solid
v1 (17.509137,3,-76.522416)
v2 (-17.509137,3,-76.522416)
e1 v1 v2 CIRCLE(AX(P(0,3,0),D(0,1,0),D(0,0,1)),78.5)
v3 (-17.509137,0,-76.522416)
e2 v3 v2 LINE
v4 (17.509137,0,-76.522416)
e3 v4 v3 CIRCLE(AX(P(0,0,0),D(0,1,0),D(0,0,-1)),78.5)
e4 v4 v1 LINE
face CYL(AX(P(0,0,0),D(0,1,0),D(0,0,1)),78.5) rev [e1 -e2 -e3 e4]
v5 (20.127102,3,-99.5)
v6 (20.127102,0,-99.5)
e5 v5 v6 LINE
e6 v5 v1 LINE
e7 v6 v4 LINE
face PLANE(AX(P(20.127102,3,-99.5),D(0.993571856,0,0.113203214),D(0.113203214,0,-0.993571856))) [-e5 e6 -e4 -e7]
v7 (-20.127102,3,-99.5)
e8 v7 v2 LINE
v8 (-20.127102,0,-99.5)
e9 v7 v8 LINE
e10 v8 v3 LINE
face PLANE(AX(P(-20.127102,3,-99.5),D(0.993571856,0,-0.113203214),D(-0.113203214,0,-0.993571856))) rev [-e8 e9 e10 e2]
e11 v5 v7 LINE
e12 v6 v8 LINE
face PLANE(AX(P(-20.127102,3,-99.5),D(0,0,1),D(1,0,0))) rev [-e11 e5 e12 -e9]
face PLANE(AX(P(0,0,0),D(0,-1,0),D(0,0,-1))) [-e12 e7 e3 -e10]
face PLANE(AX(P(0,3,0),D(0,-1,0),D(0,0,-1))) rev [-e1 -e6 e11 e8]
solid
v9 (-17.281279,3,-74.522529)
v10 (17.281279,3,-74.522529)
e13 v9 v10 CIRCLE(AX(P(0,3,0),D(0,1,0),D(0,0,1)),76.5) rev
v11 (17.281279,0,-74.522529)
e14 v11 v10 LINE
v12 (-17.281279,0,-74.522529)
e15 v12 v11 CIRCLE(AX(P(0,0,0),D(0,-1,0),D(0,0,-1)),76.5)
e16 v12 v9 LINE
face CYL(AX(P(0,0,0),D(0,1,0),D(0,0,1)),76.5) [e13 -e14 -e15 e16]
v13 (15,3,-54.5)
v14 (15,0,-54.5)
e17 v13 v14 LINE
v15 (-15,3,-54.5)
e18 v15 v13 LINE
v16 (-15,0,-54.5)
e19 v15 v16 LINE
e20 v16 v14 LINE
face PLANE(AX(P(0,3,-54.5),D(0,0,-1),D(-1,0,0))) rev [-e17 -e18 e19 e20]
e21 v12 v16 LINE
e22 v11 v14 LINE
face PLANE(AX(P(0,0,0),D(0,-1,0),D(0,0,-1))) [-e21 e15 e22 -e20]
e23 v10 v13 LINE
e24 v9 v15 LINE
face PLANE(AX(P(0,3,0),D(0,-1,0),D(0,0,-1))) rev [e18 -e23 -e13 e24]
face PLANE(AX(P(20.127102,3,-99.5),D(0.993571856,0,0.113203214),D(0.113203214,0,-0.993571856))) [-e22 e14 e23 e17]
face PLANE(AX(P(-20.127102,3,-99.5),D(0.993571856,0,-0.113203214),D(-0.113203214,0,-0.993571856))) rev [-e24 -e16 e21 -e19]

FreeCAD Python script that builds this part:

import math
import FreeCAD as App
import Part
import Sketcher

V = App.Vector
Q = App.Units.Quantity

doc = App.newDocument("Part")
body = doc.addObject("PartDesign::Body", "Body")
body.AllowCompound = True

sketch1 = body.newObject("Sketcher::SketchObject", "Sketch")
sketch1.AttachmentSupport = (doc.getObject("XZ_Plane"), [""])
sketch1.MapMode = "FlatFace"
sketch1.addGeometry([
    Part.LineSegment(V(-20, -100, 0), V(-15, -54, 0)),
    Part.LineSegment(V(-15, -54, 0), V(0, -54, 0)),
    Part.LineSegment(V(0, -54, 0), V(0, -100, 0)),
    Part.LineSegment(V(0, -100, 0), V(-20, -100, 0)),
], False)
sketch1.addConstraint([
    Sketcher.Constraint("Coincident", 0, 2, 1, 1),
    Sketcher.Constraint("Coincident", 1, 2, 2, 1),
    Sketcher.Constraint("Coincident", 2, 2, 3, 1),
    Sketcher.Constraint("Coincident", 3, 2, 0, 1),
    Sketcher.Constraint("Horizontal", 1),
    Sketcher.Constraint("Vertical", 2),
    Sketcher.Constraint("Horizontal", 3),
    Sketcher.Constraint("PointOnObject", 1, 2, -2),
    Sketcher.Constraint("DistanceX", 1, 1, 1, 2, Q("15 mm")),
    Sketcher.Constraint("DistanceY", 2, 2, 2, 1, Q("45 mm")),
    Sketcher.Constraint("Angle", 0, Q("83.5 deg")),
    Sketcher.Constraint("DistanceY", 0, 2, -1, 1, Q("54.5 mm")),
])
pad1 = body.newObject("PartDesign::Pad", "Pad")
pad1.Profile = sketch1
pad1.Length = 3
pad1.Reversed = True
doc.recompute()

mirrored = body.newObject("PartDesign::Mirrored", "Mirrored")
mirrored.Originals = [pad1]
mirrored.MirrorPlane = (doc.getObject("YZ_Plane"), [""])
body.Tip = mirrored

sketch2 = body.newObject("Sketcher::SketchObject", "Sketch001")
sketch2.AttachmentSupport = (doc.getObject("XZ_Plane"), [""])
sketch2.MapMode = "FlatFace"
sketch2.AttachmentOffset = App.Placement(V(0, 0, -3), App.Rotation())
sketch2.addGeometry([
    Part.LineSegment(V(-17.5, -76.5, 0), V(-17.3, -74.5, 0)),
    Part.ArcOfCircle(Part.Circle(V(0, 0, 0), V(0, 0, 1), 76.5), math.radians(-103), math.radians(-77)),
    Part.LineSegment(V(17.3, -74.5, 0), V(17.5, -76.5, 0)),
    Part.ArcOfCircle(Part.Circle(V(0, 0, 0), V(0, 0, 1), 78.5), math.radians(-103), math.radians(-77)),
], False)
sketch2.addConstraint([
    Sketcher.Constraint("Coincident", 0, 2, 1, 1),
    Sketcher.Constraint("Coincident", 1, 2, 2, 1),
    Sketcher.Constraint("Coincident", 2, 2, 3, 2),
    Sketcher.Constraint("Coincident", 3, 1, 0, 1),
    Sketcher.Constraint("Coincident", 1, 3, -1, 1),
    Sketcher.Constraint("Coincident", 3, 3, -1, 1),
    Sketcher.Constraint("Horizontal", 0, 2, 1, 2),
    Sketcher.Constraint("Horizontal", 2, 2, 3, 1),
    Sketcher.Constraint("Radius", 1, Q("76.5 mm")),
    Sketcher.Constraint("Radius", 3, Q("78.5 mm")),
    Sketcher.Constraint("Angle", 0, Q("83.5 deg")),
    Sketcher.Constraint("DistanceX", 0, 2, -1, 1, Q("17.281279 mm")),
])
pocket1 = body.newObject("PartDesign::Pocket", "Pocket")
pocket1.Profile = sketch2
pocket1.Type = "ThroughAll"
pocket1.Midplane = True

doc.recompute()
